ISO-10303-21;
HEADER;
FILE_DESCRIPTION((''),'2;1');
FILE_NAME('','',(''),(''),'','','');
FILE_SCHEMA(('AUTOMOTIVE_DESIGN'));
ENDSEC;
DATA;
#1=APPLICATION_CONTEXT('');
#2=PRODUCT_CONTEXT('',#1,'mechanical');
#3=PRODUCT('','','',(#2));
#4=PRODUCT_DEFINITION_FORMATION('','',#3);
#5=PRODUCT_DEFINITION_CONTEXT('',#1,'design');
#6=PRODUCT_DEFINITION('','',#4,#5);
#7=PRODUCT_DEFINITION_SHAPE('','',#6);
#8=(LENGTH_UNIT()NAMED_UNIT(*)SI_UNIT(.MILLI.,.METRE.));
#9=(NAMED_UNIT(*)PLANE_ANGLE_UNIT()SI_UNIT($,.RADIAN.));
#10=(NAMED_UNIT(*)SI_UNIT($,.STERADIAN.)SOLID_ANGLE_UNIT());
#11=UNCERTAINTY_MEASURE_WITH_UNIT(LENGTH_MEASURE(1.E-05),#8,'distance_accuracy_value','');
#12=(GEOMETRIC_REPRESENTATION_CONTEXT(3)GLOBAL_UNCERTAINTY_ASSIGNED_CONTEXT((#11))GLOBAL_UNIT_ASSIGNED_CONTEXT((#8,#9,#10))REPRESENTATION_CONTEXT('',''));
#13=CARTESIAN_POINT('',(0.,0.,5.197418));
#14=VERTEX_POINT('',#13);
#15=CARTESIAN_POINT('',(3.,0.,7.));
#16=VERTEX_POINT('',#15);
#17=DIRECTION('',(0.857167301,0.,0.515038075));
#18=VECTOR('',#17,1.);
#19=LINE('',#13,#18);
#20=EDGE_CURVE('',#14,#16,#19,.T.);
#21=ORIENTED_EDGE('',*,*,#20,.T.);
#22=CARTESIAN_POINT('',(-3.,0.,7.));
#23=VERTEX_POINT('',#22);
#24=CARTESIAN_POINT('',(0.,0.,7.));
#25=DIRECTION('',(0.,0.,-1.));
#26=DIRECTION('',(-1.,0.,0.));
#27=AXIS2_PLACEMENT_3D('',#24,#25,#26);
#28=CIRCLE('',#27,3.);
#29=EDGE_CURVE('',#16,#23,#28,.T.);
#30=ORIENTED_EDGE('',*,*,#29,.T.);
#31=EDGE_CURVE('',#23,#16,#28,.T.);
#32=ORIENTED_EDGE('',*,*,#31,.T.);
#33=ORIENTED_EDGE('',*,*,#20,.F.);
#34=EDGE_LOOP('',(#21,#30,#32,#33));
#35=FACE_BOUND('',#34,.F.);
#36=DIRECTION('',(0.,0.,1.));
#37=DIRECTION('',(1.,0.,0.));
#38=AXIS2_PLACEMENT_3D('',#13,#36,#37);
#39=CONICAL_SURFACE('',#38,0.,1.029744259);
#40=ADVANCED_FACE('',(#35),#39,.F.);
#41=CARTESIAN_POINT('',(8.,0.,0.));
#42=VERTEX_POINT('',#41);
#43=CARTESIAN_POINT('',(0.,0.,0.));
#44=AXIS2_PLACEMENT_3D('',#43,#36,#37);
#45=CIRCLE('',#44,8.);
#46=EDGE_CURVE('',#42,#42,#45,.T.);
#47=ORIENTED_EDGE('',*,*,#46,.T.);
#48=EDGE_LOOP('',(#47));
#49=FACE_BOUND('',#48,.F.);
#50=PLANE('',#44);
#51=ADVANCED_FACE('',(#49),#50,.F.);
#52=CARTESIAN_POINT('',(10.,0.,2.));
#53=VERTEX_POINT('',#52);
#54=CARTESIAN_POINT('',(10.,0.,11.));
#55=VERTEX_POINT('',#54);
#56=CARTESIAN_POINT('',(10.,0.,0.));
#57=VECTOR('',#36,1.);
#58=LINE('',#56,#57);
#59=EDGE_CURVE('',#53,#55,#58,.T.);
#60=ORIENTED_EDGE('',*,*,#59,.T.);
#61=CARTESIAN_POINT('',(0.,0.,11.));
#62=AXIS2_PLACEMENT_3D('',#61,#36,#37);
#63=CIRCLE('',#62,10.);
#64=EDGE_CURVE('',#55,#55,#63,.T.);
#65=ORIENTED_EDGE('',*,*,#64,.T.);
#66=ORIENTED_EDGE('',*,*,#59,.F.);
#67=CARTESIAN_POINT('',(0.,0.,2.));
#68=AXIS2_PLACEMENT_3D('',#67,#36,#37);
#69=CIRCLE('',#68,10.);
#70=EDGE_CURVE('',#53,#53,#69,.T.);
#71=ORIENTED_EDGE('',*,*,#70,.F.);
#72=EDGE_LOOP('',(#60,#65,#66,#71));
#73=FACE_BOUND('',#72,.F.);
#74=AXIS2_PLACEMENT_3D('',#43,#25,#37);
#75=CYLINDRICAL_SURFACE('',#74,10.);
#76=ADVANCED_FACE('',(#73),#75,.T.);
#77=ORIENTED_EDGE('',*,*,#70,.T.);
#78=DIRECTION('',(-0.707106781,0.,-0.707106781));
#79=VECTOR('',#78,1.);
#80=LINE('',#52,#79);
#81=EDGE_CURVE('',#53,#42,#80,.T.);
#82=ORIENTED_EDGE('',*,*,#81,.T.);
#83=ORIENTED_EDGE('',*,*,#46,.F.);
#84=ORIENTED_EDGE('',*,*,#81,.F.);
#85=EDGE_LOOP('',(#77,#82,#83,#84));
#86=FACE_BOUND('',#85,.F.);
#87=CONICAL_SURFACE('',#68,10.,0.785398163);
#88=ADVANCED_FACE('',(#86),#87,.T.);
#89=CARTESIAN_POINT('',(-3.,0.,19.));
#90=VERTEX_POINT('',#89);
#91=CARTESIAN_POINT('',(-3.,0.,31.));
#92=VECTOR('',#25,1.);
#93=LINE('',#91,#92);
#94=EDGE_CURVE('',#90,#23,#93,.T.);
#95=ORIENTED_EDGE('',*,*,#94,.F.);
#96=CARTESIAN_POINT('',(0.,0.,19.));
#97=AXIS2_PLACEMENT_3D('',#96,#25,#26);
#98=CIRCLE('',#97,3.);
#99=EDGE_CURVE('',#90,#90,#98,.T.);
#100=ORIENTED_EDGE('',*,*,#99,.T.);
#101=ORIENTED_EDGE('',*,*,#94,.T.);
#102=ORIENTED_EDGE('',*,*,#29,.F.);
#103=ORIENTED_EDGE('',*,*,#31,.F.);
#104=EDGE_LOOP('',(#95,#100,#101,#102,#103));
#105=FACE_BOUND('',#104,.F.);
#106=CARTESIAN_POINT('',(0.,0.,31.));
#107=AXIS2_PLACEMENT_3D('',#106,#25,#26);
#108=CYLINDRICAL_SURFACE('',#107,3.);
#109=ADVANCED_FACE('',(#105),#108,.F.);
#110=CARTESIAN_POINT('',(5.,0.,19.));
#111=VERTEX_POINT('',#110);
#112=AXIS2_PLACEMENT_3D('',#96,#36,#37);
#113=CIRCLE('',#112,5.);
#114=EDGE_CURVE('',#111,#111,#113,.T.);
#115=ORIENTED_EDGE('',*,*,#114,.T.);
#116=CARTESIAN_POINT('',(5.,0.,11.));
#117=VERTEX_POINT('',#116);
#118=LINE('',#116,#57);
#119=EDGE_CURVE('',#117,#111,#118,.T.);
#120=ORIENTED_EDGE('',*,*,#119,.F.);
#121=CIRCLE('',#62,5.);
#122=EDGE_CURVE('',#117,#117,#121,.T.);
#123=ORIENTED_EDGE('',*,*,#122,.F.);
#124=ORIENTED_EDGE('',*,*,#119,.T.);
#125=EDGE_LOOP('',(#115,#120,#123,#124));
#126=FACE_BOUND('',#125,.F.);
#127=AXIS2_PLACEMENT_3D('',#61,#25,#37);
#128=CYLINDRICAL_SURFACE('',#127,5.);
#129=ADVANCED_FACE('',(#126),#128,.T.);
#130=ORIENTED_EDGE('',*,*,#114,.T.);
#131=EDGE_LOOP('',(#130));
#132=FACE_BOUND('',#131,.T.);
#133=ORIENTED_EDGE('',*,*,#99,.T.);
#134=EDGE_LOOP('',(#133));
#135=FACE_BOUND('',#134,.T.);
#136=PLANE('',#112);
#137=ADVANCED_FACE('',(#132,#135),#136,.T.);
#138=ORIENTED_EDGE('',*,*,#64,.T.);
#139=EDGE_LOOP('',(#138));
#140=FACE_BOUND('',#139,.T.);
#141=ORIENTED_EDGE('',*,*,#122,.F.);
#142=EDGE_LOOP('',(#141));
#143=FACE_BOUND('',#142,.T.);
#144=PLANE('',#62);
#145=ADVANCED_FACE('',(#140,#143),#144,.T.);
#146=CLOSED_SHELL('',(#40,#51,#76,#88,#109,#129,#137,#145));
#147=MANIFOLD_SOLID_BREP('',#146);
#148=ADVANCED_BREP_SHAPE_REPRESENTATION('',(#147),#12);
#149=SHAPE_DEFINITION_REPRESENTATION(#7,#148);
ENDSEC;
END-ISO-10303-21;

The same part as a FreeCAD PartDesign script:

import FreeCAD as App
import Part
import Sketcher
from FreeCAD import Vector


def edges_at(feature, points):
    """Names of the edges that pass closest to the given points."""
    edges = feature.Shape.Edges
    near = lambda p: min(range(len(edges)), key=lambda i: edges[i].distToShape(Part.Vertex(*p))[0])
    return sorted({f"Edge{near(p) + 1}" for p in points})

doc = App.newDocument("Part")
body = doc.addObject("PartDesign::Body", "Body")

sketch1 = body.newObject("Sketcher::SketchObject", "Sketch")
sketch1.AttachmentSupport = (doc.getObject("XY_Plane"), [""])
sketch1.MapMode = "FlatFace"
sketch1.addGeometry(Part.Circle(Vector(0, 0, 0), Vector(0, 0, 1), 10), False)
sketch1.addConstraint([
    Sketcher.Constraint("Coincident", 0, 3, -1, 1),
    Sketcher.Constraint("Diameter", 0, 20.0),
])
pad1 = body.newObject("PartDesign::Pad", "Pad")
pad1.Profile = sketch1
pad1.Length = 11

sketch2 = body.newObject("Sketcher::SketchObject", "Sketch001")
sketch2.AttachmentSupport = (doc.getObject("XY_Plane"), [""])
sketch2.MapMode = "FlatFace"
sketch2.AttachmentOffset = App.Placement(Vector(0, 0, 11), App.Rotation())
sketch2.addGeometry(Part.Circle(Vector(0, 0, 0), Vector(0, 0, 1), 5), False)
sketch2.addConstraint([
    Sketcher.Constraint("Coincident", 0, 3, -1, 1),
    Sketcher.Constraint("Diameter", 0, 10.0),
])
pad2 = body.newObject("PartDesign::Pad", "Pad001")
pad2.Profile = sketch2
pad2.Length = 8

sketch3 = body.newObject("Sketcher::SketchObject", "Sketch002")
sketch3.AttachmentSupport = (doc.getObject("XY_Plane"), [""])
sketch3.MapMode = "FlatFace"
sketch3.AttachmentOffset = App.Placement(Vector(0, 0, 19), App.Rotation())
sketch3.addGeometry(Part.Circle(Vector(0, 0, 0), Vector(0, 0, 1), 3), False)
sketch3.addConstraint([
    Sketcher.Constraint("Coincident", 0, 3, -1, 1),
    Sketcher.Constraint("Diameter", 0, 6.0),
])
doc.recompute()
hole = body.newObject("PartDesign::Hole", "Hole")
hole.Profile = sketch3
hole.ThreadType = "None"
hole.Diameter = 6
hole.DepthType = "Dimension"
hole.Depth = 12
hole.DrillPoint = "Angled"
hole.DrillPointAngle = 118
doc.recompute()

chamfer = body.newObject("PartDesign::Chamfer", "Chamfer")
chamfer.Base = (hole, edges_at(hole, [(-10, 0, 0)]))
chamfer.Size = 2

doc.recompute()
